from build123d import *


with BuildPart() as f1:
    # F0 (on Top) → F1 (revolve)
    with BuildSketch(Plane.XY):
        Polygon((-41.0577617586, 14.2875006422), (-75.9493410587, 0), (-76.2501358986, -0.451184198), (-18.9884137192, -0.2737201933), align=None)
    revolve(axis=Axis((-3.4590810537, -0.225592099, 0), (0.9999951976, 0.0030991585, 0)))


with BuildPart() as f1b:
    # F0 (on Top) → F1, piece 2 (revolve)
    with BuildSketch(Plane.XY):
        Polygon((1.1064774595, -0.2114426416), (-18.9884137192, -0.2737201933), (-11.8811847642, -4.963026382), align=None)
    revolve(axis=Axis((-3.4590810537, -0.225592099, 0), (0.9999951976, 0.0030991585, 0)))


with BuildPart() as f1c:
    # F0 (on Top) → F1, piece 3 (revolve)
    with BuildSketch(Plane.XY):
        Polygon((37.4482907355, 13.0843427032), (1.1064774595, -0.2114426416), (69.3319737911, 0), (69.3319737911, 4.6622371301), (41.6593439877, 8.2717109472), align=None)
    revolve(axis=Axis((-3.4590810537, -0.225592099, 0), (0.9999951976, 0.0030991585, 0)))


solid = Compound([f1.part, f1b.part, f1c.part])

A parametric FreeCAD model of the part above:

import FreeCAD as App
import Part
import Sketcher
from FreeCAD import Vector

doc = App.newDocument("Part")
params = doc.addObject("Spreadsheet::Sheet", "Params")
for row, (alias, value) in enumerate([
    ("revolution_angle", "360 deg"),
    ("revolution2_angle", "360 deg"),
    ("revolution3_angle", "360 deg"),
], start=1):
    params.set(f"A{row}", alias)
    params.set(f"B{row}", "=" + value)
    params.setAlias(f"B{row}", alias)

body = doc.addObject("PartDesign::Body", "Body")

# Sketch on XY plane
sketch1 = body.newObject("Sketcher::SketchObject", "Sketch")
sketch1.AttachmentSupport = (doc.getObject("XY_Plane"), [""])
sketch1.MapMode = "FlatFace"
sketch1.addGeometry([
    Part.LineSegment(Vector(-41.1, 14.3, 0), Vector(-75.9, 0, 0)),
    Part.LineSegment(Vector(-75.9, 0, 0), Vector(-76.3, -0.5, 0)),
    Part.LineSegment(Vector(-76.3, -0.5, 0), Vector(-19, -0.3, 0)),
    Part.LineSegment(Vector(-19, -0.3, 0), Vector(-41.1, 14.3, 0)),
], False)
sketch1.addGeometry(Part.LineSegment(Vector(-76.3, -0.5, 0), Vector(-19, -0.3, 0)), True)  # axis
sketch1.addConstraint([
    Sketcher.Constraint("Coincident", 0, 2, 1, 1),
    Sketcher.Constraint("Coincident", 1, 2, 2, 1),
    Sketcher.Constraint("Coincident", 2, 2, 3, 1),
    Sketcher.Constraint("Coincident", 3, 2, 0, 1),
    Sketcher.Constraint("Coincident", 4, 1, 1, 2),
    Sketcher.Constraint("Coincident", 4, 2, 2, 2),
    Sketcher.Constraint("PointOnObject", 0, 2, -1),
    Sketcher.Constraint("DistanceY", -1, 1, 3, 2, 14.287501),
    Sketcher.Constraint("Distance", 1, 0.542259),
    Sketcher.Constraint("Distance", 3, 26.440221),
    Sketcher.Constraint("DistanceX", 0, 2, -1, 1, 75.949341),
    Sketcher.Constraint("DistanceY", 2, 2, -1, 1, 0.27372),
    Sketcher.Constraint("DistanceX", 3, 2, -1, 1, 41.057762),
    Sketcher.Constraint("Distance", 2, 57.261997),
])
revolution = body.newObject("PartDesign::Revolution", "Revolution")
revolution.Profile = sketch1
revolution.ReferenceAxis = (sketch1, ["Axis0"])
revolution.setExpression("Angle", "Params.revolution_angle")
body2 = doc.addObject("PartDesign::Body", "Body001")

# Sketch on XY plane
sketch2 = body2.newObject("Sketcher::SketchObject", "Sketch001")
sketch2.AttachmentSupport = (doc.getObject("XY_Plane001"), [""])
sketch2.MapMode = "FlatFace"
sketch2.addGeometry([
    Part.LineSegment(Vector(1, 0, 0), Vector(-19, 0, 0)),
    Part.LineSegment(Vector(-19, 0, 0), Vector(-12, -5, 0)),
    Part.LineSegment(Vector(-12, -5, 0), Vector(1, 0, 0)),
], False)
sketch2.addGeometry(Part.LineSegment(Vector(-19, 0, 0), Vector(1, 0, 0)), True)  # axis
sketch2.addConstraint([
    Sketcher.Constraint("Coincident", 0, 2, 1, 1),
    Sketcher.Constraint("Coincident", 1, 2, 2, 1),
    Sketcher.Constraint("Coincident", 2, 2, 0, 1),
    Sketcher.Constraint("Coincident", 3, 1, 0, 2),
    Sketcher.Constraint("Coincident", 3, 2, 2, 2),
    Sketcher.Constraint("Distance", 1, 8.514828),
    Sketcher.Constraint("DistanceY", 0, 2, -1, 1, 0.27372),
    Sketcher.Constraint("DistanceX", 0, 2, 1, 2, 7.107229),
    Sketcher.Constraint("DistanceX", 0, 2, 2, 2, 20.094891),
    Sketcher.Constraint("Distance", 2, 13.829567),
    Sketcher.Constraint("DistanceX", 0, 2, -1, 1, 18.988414),
])
revolution2 = body2.newObject("PartDesign::Revolution", "Revolution001")
revolution2.Profile = sketch2
revolution2.ReferenceAxis = (sketch2, ["Axis0"])
revolution2.setExpression("Angle", "Params.revolution2_angle")
body3 = doc.addObject("PartDesign::Body", "Body002")

# Sketch on XY plane
sketch3 = body3.newObject("Sketcher::SketchObject", "Sketch002")
sketch3.AttachmentSupport = (doc.getObject("XY_Plane002"), [""])
sketch3.MapMode = "FlatFace"
sketch3.addGeometry([
    Part.LineSegment(Vector(37.4, 13.1, 0), Vector(1.1, -0.2, 0)),  # 0
    Part.LineSegment(Vector(1.1, -0.2, 0), Vector(69.3, 0, 0)),  # 1
    Part.LineSegment(Vector(69.3, 0, 0), Vector(69.3, 4.7, 0)),  # 2
    Part.LineSegment(Vector(69.3, 4.7, 0), Vector(41.7, 8.3, 0)),  # 3
    Part.LineSegment(Vector(41.7, 8.3, 0), Vector(37.4, 13.1, 0)),  # 4
], False)
sketch3.addGeometry(Part.LineSegment(Vector(1.1, -0.2, 0), Vector(69.3, 0, 0)), True)  # axis
sketch3.addConstraint([
    Sketcher.Constraint("Coincident", 0, 2, 1, 1),
    Sketcher.Constraint("Coincident", 1, 2, 2, 1),
    Sketcher.Constraint("Coincident", 2, 2, 3, 1),
    Sketcher.Constraint("Coincident", 3, 2, 4, 1),
    Sketcher.Constraint("Coincident", 4, 2, 0, 1),
    Sketcher.Constraint("Vertical", 2),
    Sketcher.Constraint("Coincident", 5, 1, 0, 2),
    Sketcher.Constraint("PointOnObject", 1, 2, -1),
    Sketcher.Constraint("Parallel", 1, 5),
    Sketcher.Constraint("DistanceY", 2, 1, 2, 2, 4.662237),
    Sketcher.Constraint("DistanceY", -1, 1, 3, 2, 8.271711),
    Sketcher.Constraint("DistanceX", -1, 1, 4, 2, 37.448291),
    Sketcher.Constraint("DistanceY", 0, 2, 2, 2, 4.87368),
    Sketcher.Constraint("DistanceX", 3, 2, 2, 2, 27.67263),
    Sketcher.Constraint("DistanceY", 3, 2, 4, 2, 4.812632),
    Sketcher.Constraint("DistanceX", 1, 2, 5, 2, 0.014449),
    Sketcher.Constraint("Distance", 0, 38.697614),
    Sketcher.Constraint("Distance", 1, 68.225824),
])
revolution3 = body3.newObject("PartDesign::Revolution", "Revolution002")
revolution3.Profile = sketch3
revolution3.ReferenceAxis = (sketch3, ["Axis0"])
revolution3.setExpression("Angle", "Params.revolution3_angle")

doc.recompute()
